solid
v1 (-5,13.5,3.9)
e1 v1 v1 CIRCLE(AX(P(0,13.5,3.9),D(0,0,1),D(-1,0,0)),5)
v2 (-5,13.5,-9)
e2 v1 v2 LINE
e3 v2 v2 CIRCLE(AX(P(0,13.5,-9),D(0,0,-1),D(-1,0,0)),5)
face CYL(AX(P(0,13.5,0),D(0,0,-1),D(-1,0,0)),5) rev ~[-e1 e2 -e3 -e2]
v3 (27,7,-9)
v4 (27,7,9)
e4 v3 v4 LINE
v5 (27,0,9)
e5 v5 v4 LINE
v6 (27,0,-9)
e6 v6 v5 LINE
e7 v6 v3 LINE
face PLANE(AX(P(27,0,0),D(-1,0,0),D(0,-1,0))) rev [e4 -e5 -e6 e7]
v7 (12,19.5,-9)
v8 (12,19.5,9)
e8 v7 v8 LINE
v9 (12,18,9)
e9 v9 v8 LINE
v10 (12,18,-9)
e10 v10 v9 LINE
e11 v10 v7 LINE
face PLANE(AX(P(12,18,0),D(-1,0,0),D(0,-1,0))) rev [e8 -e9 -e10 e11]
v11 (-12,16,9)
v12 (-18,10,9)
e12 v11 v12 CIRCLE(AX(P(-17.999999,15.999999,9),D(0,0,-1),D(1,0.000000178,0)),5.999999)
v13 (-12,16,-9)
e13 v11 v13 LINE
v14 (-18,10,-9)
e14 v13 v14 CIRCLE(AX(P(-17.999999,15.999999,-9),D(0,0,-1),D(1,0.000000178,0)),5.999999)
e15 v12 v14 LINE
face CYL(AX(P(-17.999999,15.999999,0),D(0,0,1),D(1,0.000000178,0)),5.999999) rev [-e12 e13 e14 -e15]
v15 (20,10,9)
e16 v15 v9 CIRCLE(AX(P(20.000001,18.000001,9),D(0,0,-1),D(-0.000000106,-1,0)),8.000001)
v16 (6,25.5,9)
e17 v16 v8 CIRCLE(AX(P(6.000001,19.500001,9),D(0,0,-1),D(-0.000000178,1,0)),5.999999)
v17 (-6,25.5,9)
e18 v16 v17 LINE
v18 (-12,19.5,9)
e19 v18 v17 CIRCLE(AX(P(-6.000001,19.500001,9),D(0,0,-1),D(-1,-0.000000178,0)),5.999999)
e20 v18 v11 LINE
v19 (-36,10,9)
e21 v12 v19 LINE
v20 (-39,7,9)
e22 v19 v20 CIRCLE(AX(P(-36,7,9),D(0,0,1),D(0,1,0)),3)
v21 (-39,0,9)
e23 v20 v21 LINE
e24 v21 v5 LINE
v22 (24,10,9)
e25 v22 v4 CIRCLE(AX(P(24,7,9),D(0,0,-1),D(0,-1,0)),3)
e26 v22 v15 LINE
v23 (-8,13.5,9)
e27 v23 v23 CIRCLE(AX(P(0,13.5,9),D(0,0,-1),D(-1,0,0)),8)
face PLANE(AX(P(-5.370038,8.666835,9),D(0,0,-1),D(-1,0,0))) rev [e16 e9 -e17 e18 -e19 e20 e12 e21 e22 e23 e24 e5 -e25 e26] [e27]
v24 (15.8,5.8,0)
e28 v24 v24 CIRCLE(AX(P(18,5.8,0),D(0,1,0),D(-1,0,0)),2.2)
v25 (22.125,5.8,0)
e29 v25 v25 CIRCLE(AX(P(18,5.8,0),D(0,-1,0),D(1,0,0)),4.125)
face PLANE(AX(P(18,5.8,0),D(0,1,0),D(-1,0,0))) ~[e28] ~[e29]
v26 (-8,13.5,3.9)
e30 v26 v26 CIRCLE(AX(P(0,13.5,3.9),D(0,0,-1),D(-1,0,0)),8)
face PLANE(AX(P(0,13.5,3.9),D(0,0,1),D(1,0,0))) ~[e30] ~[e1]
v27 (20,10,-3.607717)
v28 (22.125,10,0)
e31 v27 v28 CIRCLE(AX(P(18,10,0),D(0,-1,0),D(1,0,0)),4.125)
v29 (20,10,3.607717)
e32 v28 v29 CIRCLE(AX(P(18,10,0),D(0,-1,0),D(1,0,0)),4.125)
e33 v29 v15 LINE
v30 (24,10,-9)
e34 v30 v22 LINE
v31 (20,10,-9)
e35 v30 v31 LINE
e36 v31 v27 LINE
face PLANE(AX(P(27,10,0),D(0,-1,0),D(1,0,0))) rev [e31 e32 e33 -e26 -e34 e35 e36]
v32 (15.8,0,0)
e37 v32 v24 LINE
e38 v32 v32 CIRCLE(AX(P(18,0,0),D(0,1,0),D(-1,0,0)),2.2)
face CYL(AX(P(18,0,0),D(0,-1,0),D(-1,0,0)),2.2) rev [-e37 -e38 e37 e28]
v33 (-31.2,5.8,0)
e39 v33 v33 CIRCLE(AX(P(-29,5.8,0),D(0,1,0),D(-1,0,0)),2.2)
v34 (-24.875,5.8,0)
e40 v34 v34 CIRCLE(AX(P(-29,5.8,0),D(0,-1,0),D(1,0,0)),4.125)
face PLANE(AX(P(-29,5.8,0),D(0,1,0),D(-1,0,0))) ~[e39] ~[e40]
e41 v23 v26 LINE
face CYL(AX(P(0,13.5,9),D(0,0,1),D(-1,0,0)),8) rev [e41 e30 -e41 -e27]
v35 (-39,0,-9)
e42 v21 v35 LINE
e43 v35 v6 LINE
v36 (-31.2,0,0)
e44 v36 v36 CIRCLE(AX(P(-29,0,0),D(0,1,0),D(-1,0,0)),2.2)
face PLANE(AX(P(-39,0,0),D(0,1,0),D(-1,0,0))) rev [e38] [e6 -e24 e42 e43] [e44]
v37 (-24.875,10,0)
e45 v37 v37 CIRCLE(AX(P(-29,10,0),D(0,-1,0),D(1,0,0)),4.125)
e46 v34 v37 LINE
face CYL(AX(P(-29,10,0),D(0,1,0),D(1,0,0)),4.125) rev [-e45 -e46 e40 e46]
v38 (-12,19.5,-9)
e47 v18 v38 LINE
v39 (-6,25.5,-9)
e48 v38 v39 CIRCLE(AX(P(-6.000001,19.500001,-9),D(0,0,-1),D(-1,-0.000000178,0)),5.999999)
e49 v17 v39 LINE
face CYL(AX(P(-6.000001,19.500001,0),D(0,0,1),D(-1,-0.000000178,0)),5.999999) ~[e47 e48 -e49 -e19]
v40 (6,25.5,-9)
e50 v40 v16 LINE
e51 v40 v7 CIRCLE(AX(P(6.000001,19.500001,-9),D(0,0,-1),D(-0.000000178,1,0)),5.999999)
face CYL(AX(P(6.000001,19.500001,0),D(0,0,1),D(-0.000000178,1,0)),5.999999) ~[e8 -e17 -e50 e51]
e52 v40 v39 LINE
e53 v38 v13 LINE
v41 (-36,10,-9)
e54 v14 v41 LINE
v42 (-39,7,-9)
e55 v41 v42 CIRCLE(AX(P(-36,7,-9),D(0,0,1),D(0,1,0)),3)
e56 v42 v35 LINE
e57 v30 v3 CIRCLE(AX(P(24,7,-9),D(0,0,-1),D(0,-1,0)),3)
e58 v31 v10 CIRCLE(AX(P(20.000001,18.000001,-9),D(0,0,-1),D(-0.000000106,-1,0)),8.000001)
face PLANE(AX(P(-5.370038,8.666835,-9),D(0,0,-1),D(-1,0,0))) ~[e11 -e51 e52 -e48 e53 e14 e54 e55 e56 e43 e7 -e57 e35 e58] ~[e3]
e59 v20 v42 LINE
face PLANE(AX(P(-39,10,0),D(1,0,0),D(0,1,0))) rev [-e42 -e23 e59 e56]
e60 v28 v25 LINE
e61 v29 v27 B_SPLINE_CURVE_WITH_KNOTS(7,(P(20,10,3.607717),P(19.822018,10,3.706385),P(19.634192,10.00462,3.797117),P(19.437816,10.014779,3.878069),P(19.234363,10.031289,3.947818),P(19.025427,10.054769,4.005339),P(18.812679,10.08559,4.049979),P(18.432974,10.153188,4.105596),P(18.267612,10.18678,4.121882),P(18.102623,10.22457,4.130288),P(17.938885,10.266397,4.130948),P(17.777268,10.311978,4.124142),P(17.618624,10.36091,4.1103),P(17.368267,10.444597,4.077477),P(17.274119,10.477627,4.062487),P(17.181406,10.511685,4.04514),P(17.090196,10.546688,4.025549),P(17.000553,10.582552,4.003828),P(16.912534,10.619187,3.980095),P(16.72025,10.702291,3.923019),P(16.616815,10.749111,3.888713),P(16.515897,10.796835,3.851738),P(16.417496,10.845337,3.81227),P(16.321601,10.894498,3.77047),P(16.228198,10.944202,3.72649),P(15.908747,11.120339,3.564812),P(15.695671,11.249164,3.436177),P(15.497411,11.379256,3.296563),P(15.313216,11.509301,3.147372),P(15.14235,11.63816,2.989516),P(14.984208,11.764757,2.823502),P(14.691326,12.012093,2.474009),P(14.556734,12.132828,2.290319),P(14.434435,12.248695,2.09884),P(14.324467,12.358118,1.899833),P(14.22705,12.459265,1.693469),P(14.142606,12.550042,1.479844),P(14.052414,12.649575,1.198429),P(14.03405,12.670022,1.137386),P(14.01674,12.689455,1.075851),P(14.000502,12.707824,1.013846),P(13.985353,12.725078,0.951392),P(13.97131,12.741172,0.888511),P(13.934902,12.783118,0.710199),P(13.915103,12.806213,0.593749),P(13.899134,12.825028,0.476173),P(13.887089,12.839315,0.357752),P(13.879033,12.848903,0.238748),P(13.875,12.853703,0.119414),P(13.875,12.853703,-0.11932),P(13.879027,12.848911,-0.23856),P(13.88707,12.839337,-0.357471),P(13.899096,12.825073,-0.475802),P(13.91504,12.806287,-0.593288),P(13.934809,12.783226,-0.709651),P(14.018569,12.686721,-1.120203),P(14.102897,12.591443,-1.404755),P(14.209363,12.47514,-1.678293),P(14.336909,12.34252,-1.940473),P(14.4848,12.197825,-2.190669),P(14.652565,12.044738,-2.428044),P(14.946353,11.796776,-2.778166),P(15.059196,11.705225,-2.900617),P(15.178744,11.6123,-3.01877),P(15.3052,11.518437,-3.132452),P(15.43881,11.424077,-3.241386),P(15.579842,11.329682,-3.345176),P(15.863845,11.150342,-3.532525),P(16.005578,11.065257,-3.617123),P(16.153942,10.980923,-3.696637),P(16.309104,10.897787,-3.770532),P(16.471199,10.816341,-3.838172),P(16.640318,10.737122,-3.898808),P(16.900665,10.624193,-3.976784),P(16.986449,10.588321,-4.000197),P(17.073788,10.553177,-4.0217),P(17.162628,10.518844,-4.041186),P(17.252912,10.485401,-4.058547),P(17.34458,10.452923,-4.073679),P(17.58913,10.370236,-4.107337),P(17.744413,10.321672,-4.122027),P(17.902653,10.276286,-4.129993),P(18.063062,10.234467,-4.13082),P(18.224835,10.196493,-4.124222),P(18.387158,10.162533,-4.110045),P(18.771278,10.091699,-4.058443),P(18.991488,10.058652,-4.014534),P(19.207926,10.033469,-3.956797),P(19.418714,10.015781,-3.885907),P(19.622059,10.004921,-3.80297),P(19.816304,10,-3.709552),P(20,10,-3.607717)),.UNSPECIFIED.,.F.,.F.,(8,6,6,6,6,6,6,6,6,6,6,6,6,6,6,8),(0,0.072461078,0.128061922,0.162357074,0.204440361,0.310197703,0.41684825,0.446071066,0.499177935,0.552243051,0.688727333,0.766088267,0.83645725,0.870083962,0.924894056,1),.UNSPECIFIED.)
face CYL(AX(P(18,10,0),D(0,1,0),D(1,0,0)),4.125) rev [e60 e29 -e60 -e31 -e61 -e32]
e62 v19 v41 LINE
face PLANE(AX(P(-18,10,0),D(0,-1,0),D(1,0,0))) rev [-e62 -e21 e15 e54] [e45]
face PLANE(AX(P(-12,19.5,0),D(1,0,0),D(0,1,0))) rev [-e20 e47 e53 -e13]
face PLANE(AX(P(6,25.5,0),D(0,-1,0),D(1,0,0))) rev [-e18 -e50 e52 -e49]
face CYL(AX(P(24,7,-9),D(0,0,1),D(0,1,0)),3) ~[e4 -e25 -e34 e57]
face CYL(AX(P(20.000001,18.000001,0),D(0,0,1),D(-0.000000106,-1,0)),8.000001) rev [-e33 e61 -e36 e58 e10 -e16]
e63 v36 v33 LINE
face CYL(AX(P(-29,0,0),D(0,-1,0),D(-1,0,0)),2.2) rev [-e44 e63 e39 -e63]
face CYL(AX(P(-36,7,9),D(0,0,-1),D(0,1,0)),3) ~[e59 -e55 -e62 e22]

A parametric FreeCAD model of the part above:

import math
import FreeCAD as App
import Part
import Sketcher


def edges_at(feature, points):
    """Names of the edges that pass closest to the given points."""
    edges = feature.Shape.Edges
    near = lambda p: min(range(len(edges)), key=lambda i: edges[i].distToShape(Part.Vertex(*p))[0])
    return sorted({f"Edge{near(p) + 1}" for p in points})

doc = App.newDocument("Part")
body = doc.addObject("PartDesign::Body", "Body")

# Sketch on XY plane
sketch1 = body.newObject("Sketcher::SketchObject", "Sketch")
sketch1.AttachmentSupport = (doc.getObject("XY_Plane"), [""])
sketch1.MapMode = "FlatFace"
sketch1.addGeometry(Part.LineSegment(App.Vector(6, 25.5, 0), App.Vector(-6, 25.5, 0)), False)
sketch1.addGeometry(Part.ArcOfCircle(Part.Circle(App.Vector(-6, 19.5, 0), App.Vector(0, 0, 1), 6), math.radians(90), math.radians(180)), False)
sketch1.addGeometry(Part.LineSegment(App.Vector(-12, 19.5, 0), App.Vector(-12, 18, 0)), False)
sketch1.addGeometry(Part.ArcOfCircle(Part.Circle(App.Vector(-20, 18, 0), App.Vector(0, 0, 1), 8), math.radians(-90), math.radians(0)), False)
sketch1.addGeometry(Part.LineSegment(App.Vector(-20, 10, 0), App.Vector(-27, 10, 0)), False)
sketch1.addGeometry(Part.LineSegment(App.Vector(-27, 10, 0), App.Vector(-27, 0, 0)), False)
sketch1.addGeometry(Part.LineSegment(App.Vector(-27, 0, 0), App.Vector(39, 0, 0)), False)
sketch1.addGeometry(Part.LineSegment(App.Vector(39, 0, 0), App.Vector(39, 10, 0)), False)
sketch1.addGeometry(Part.LineSegment(App.Vector(39, 10, 0), App.Vector(18, 10, 0)), False)
sketch1.addGeometry(Part.ArcOfCircle(Part.Circle(App.Vector(18, 16, 0), App.Vector(0, 0, 1), 6), math.radians(180), math.radians(270)), False)
sketch1.addGeometry(Part.LineSegment(App.Vector(12, 16, 0), App.Vector(12, 19.5, 0)), False)
sketch1.addGeometry(Part.ArcOfCircle(Part.Circle(App.Vector(6, 19.5, 0), App.Vector(0, 0, 1), 6), math.radians(0), math.radians(90)), False)
sketch1.addGeometry(Part.Circle(App.Vector(0, 13.5, 0), App.Vector(0, 0, 1), 5), False)
sketch1.addConstraint(Sketcher.Constraint("Tangent", 0, 2, 1, 1))
sketch1.addConstraint(Sketcher.Constraint("Tangent", 1, 2, 2, 1))
sketch1.addConstraint(Sketcher.Constraint("Tangent", 2, 2, 3, 2))
sketch1.addConstraint(Sketcher.Constraint("Tangent", 3, 1, 4, 1))
sketch1.addConstraint(Sketcher.Constraint("Coincident", 4, 2, 5, 1))
sketch1.addConstraint(Sketcher.Constraint("Coincident", 5, 2, 6, 1))
sketch1.addConstraint(Sketcher.Constraint("Coincident", 6, 2, 7, 1))
sketch1.addConstraint(Sketcher.Constraint("Coincident", 7, 2, 8, 1))
sketch1.addConstraint(Sketcher.Constraint("Tangent", 8, 2, 9, 2))
sketch1.addConstraint(Sketcher.Constraint("Tangent", 9, 1, 10, 1))
sketch1.addConstraint(Sketcher.Constraint("Tangent", 10, 2, 11, 1))
sketch1.addConstraint(Sketcher.Constraint("Tangent", 11, 2, 0, 1))
sketch1.addConstraint(Sketcher.Constraint("Horizontal", 0))
sketch1.addConstraint(Sketcher.Constraint("Vertical", 2))
sketch1.addConstraint(Sketcher.Constraint("Horizontal", 4))
sketch1.addConstraint(Sketcher.Constraint("Vertical", 5))
sketch1.addConstraint(Sketcher.Constraint("Horizontal", 6))
sketch1.addConstraint(Sketcher.Constraint("Vertical", 7))
sketch1.addConstraint(Sketcher.Constraint("Horizontal", 8))
sketch1.addConstraint(Sketcher.Constraint("Vertical", 10))
sketch1.addConstraint(Sketcher.Constraint("Equal", 1, 9))
sketch1.addConstraint(Sketcher.Constraint("Equal", 9, 11))
sketch1.addConstraint(Sketcher.Constraint("PointOnObject", 12, 3, -2))
sketch1.addConstraint(Sketcher.Constraint("PointOnObject", 5, 2, -1))
sketch1.addConstraint(Sketcher.Constraint("Horizontal", 4, 2, 7, 2))
sketch1.addConstraint(Sketcher.Constraint("Diameter", 12, 10.0))
sketch1.addConstraint(Sketcher.Constraint("Radius", 1, 5.999999))
sketch1.addConstraint(Sketcher.Constraint("Radius", 3, 8.000001))
sketch1.addConstraint(Sketcher.Constraint("DistanceX", 0, 2, 0, 1, 12.0))
sketch1.addConstraint(Sketcher.Constraint("DistanceX", 4, 2, 4, 1, 7.0))
sketch1.addConstraint(Sketcher.Constraint("DistanceX", 6, 1, 6, 2, 66.0))
sketch1.addConstraint(Sketcher.Constraint("DistanceY", 5, 2, 5, 1, 10.0))
sketch1.addConstraint(Sketcher.Constraint("DistanceY", 2, 2, 2, 1, 1.5))
sketch1.addConstraint(Sketcher.Constraint("DistanceX", 1, 3, -1, 1, 6.000001))
sketch1.addConstraint(Sketcher.Constraint("DistanceY", 12, 3, 1, 3, 6.000001))
pad1 = body.newObject("PartDesign::Pad", "Pad")
pad1.Profile = sketch1
pad1.Length = 18
pad1.Midplane = True

# Sketch on XZ plane
sketch2 = body.newObject("Sketcher::SketchObject", "Sketch001")
sketch2.AttachmentSupport = (doc.getObject("XZ_Plane"), [""])
sketch2.MapMode = "FlatFace"
sketch2.addGeometry(Part.Circle(App.Vector(29, 0, 0), App.Vector(0, 0, 1), 2.2), False)
sketch2.addGeometry(Part.Circle(App.Vector(-18, 0, 0), App.Vector(0, 0, 1), 2.2), False)
sketch2.addConstraint(Sketcher.Constraint("Equal", 0, 1))
sketch2.addConstraint(Sketcher.Constraint("PointOnObject", 0, 3, -1))
sketch2.addConstraint(Sketcher.Constraint("PointOnObject", 1, 3, -1))
sketch2.addConstraint(Sketcher.Constraint("Diameter", 0, 4.4))
sketch2.addConstraint(Sketcher.Constraint("DistanceX", -1, 1, 0, 3, 29.0))
sketch2.addConstraint(Sketcher.Constraint("DistanceX", 1, 3, -1, 1, 18.0))
pocket1 = body.newObject("PartDesign::Pocket", "Pocket")
pocket1.Profile = sketch2
pocket1.Type = "ThroughAll"

# Sketch on XY plane
sketch3 = body.newObject("Sketcher::SketchObject", "Sketch002")
sketch3.AttachmentSupport = (doc.getObject("XY_Plane"), [""])
sketch3.MapMode = "FlatFace"
sketch3.AttachmentOffset = App.Placement(App.Vector(0, 0, 9), App.Rotation())
sketch3.addGeometry(Part.Circle(App.Vector(0, 14, 0), App.Vector(0, 0, 1), 8), False)
sketch3.addConstraint(Sketcher.Constraint("PointOnObject", 0, 3, -2))
sketch3.addConstraint(Sketcher.Constraint("Diameter", 0, 16.0))
sketch3.addConstraint(Sketcher.Constraint("DistanceY", -1, 1, 0, 3, 13.5))
pocket2 = body.newObject("PartDesign::Pocket", "Pocket001")
pocket2.Profile = sketch3
pocket2.Length = 5.1

# Sketch on XZ plane
sketch4 = body.newObject("Sketcher::SketchObject", "Sketch003")
sketch4.AttachmentSupport = (doc.getObject("XZ_Plane"), [""])
sketch4.MapMode = "FlatFace"
sketch4.AttachmentOffset = App.Placement(App.Vector(0, 0, -10), App.Rotation())
sketch4.addGeometry(Part.Circle(App.Vector(-18, 0, 0), App.Vector(0, 0, 1), 4.1), False)
sketch4.addGeometry(Part.Circle(App.Vector(29, 0, 0), App.Vector(0, 0, 1), 4.1), False)
sketch4.addConstraint(Sketcher.Constraint("Equal", 0, 1))
sketch4.addConstraint(Sketcher.Constraint("PointOnObject", 0, 3, -1))
sketch4.addConstraint(Sketcher.Constraint("PointOnObject", 1, 3, -1))
sketch4.addConstraint(Sketcher.Constraint("Diameter", 0, 8.25))
sketch4.addConstraint(Sketcher.Constraint("DistanceX", 0, 3, -1, 1, 18.0))
sketch4.addConstraint(Sketcher.Constraint("DistanceX", -1, 1, 1, 3, 29.0))
pocket3 = body.newObject("PartDesign::Pocket", "Pocket002")
pocket3.Profile = sketch4
pocket3.Length = 8.4
pocket3.Midplane = True
doc.recompute()

fillet = body.newObject("PartDesign::Fillet", "Fillet")
fillet.Base = (pocket3, edges_at(pocket3, [(39, 10, 0), (-27, 10, 0)]))
fillet.Radius = 3
body2 = doc.addObject("PartDesign::Body", "Body001")
doc.recompute()

mirroring = doc.addObject("Part::Mirroring", "Mirroring")
mirroring.Source = body
mirroring.Base = App.Vector(0, 0, 0)
mirroring.Normal = App.Vector(1, 0, 0)
body2.BaseFeature = mirroring
doc.recompute()
body.Visibility = False
mirroring.Visibility = False

doc.recompute()
